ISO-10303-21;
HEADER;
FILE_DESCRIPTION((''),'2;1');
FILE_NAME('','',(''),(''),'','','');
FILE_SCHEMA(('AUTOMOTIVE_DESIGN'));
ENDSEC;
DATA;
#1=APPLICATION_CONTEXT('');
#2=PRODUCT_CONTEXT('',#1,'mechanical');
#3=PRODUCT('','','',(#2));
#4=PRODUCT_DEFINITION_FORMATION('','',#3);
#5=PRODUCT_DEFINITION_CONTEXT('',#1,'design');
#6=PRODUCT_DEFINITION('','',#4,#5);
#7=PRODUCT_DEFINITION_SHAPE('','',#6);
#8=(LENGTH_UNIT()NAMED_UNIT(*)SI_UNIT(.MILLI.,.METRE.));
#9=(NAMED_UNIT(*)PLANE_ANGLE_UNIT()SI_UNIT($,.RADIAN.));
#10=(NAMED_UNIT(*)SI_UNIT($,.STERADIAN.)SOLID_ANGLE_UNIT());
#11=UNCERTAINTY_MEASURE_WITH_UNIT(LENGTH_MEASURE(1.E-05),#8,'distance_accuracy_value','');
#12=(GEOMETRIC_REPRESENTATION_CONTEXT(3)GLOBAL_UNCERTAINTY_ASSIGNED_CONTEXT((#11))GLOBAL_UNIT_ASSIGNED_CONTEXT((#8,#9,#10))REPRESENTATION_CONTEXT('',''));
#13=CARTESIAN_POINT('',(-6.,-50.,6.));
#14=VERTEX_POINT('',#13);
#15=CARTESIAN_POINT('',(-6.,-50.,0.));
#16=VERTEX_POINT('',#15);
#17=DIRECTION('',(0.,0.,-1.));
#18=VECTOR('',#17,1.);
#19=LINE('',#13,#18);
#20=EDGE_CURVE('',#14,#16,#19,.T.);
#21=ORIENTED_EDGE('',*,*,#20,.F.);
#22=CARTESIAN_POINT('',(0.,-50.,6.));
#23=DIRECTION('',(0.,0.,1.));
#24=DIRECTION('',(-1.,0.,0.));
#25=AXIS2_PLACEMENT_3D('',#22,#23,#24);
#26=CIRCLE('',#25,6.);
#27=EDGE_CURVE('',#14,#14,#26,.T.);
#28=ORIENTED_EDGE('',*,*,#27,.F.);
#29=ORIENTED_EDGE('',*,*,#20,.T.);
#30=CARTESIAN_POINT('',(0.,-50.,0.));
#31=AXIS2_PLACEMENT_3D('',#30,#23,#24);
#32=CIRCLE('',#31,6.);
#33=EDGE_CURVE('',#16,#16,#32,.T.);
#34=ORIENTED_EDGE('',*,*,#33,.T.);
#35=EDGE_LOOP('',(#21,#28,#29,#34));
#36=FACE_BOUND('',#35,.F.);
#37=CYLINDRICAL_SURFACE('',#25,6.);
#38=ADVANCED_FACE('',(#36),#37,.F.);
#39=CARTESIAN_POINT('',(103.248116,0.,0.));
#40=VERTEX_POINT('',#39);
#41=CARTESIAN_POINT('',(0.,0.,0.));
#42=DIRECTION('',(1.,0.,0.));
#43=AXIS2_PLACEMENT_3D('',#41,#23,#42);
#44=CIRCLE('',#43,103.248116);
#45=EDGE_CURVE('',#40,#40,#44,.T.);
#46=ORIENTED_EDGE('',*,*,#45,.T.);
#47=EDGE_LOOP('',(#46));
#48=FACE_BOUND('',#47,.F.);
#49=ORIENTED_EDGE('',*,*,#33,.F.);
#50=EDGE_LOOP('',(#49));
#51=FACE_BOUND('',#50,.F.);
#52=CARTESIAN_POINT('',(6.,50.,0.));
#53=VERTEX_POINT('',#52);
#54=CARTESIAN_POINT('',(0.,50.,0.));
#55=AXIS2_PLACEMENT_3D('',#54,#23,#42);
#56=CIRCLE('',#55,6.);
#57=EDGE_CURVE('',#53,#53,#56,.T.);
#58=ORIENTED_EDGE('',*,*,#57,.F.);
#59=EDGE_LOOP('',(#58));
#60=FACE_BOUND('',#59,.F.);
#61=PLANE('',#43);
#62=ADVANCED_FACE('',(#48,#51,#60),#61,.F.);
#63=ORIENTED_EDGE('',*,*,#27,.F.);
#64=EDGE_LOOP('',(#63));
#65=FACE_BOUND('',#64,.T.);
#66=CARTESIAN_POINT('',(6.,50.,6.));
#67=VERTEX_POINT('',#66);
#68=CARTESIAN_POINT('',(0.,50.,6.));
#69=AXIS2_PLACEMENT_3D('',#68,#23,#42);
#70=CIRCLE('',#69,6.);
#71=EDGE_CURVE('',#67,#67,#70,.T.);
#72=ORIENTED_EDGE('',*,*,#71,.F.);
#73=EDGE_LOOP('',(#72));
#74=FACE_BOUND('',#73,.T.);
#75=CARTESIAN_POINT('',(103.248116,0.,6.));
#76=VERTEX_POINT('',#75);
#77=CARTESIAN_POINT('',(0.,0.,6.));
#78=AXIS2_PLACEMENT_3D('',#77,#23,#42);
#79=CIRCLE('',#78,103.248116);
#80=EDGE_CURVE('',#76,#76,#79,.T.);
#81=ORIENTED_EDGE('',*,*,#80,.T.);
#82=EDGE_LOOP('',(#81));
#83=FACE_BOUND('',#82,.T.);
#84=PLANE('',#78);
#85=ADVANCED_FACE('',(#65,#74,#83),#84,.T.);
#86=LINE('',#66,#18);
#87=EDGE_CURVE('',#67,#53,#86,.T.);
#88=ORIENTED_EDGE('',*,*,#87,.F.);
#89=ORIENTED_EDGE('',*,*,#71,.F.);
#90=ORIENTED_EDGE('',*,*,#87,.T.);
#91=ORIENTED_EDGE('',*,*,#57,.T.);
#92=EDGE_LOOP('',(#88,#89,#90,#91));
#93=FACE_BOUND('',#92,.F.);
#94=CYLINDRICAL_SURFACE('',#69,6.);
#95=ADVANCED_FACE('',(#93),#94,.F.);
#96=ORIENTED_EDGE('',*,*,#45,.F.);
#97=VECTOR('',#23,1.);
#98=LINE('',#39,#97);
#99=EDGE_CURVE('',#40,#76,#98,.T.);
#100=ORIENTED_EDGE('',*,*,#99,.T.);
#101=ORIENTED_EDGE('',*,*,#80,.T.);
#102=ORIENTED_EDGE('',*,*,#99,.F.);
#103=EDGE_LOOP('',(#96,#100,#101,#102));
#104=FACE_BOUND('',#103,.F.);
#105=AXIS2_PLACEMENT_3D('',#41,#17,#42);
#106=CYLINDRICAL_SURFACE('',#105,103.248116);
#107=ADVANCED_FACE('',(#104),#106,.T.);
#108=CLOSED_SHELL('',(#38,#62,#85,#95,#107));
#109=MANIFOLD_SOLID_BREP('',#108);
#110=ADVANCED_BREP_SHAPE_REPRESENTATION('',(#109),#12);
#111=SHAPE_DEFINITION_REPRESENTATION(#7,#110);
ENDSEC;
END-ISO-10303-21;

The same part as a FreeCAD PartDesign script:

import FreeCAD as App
import Part
import Sketcher
from FreeCAD import Vector
Q = App.Units.Quantity

doc = App.newDocument("Part")
body = doc.addObject("PartDesign::Body", "Body")

# Sketch on XY plane
sketch1 = body.newObject("Sketcher::SketchObject", "Sketch")
sketch1.AttachmentSupport = (doc.getObject("XY_Plane"), [""])
sketch1.MapMode = "FlatFace"
sketch1.addGeometry(Part.Circle(Vector(0, 0, 0), Vector(0, 0, 1), 103), False)
sketch1.addConstraint([
    Sketcher.Constraint("Coincident", 0, 3, -1, 1),
    Sketcher.Constraint("Diameter", 0, Q("206.496232 mm")),
])
pad1 = body.newObject("PartDesign::Pad", "Pad")
pad1.Profile = sketch1
pad1.Length = 6

# Sketch on XY plane
sketch2 = body.newObject("Sketcher::SketchObject", "Sketch001")
sketch2.AttachmentSupport = (doc.getObject("XY_Plane"), [""])
sketch2.MapMode = "FlatFace"
sketch2.AttachmentOffset = App.Placement(Vector(0, 0, 6), App.Rotation())
sketch2.addGeometry(Part.Circle(Vector(0, 50, 0), Vector(0, 0, 1), 6), False)
sketch2.addConstraint([
    Sketcher.Constraint("PointOnObject", 0, 3, -2),
    Sketcher.Constraint("Diameter", 0, Q("12 mm")),
    Sketcher.Constraint("DistanceY", -1, 1, 0, 3, Q("50 mm")),
])
pocket1 = body.newObject("PartDesign::Pocket", "Pocket")
pocket1.Profile = sketch2
pocket1.Type = "ThroughAll"
doc.recompute()

polarpattern = body.newObject("PartDesign::PolarPattern", "PolarPattern")
polarpattern.Originals = [pocket1]
polarpattern.Axis = (doc.getObject("Z_Axis"), [""])
polarpattern.Angle = 360
polarpattern.Occurrences = 2
body.Tip = polarpattern

doc.recompute()
